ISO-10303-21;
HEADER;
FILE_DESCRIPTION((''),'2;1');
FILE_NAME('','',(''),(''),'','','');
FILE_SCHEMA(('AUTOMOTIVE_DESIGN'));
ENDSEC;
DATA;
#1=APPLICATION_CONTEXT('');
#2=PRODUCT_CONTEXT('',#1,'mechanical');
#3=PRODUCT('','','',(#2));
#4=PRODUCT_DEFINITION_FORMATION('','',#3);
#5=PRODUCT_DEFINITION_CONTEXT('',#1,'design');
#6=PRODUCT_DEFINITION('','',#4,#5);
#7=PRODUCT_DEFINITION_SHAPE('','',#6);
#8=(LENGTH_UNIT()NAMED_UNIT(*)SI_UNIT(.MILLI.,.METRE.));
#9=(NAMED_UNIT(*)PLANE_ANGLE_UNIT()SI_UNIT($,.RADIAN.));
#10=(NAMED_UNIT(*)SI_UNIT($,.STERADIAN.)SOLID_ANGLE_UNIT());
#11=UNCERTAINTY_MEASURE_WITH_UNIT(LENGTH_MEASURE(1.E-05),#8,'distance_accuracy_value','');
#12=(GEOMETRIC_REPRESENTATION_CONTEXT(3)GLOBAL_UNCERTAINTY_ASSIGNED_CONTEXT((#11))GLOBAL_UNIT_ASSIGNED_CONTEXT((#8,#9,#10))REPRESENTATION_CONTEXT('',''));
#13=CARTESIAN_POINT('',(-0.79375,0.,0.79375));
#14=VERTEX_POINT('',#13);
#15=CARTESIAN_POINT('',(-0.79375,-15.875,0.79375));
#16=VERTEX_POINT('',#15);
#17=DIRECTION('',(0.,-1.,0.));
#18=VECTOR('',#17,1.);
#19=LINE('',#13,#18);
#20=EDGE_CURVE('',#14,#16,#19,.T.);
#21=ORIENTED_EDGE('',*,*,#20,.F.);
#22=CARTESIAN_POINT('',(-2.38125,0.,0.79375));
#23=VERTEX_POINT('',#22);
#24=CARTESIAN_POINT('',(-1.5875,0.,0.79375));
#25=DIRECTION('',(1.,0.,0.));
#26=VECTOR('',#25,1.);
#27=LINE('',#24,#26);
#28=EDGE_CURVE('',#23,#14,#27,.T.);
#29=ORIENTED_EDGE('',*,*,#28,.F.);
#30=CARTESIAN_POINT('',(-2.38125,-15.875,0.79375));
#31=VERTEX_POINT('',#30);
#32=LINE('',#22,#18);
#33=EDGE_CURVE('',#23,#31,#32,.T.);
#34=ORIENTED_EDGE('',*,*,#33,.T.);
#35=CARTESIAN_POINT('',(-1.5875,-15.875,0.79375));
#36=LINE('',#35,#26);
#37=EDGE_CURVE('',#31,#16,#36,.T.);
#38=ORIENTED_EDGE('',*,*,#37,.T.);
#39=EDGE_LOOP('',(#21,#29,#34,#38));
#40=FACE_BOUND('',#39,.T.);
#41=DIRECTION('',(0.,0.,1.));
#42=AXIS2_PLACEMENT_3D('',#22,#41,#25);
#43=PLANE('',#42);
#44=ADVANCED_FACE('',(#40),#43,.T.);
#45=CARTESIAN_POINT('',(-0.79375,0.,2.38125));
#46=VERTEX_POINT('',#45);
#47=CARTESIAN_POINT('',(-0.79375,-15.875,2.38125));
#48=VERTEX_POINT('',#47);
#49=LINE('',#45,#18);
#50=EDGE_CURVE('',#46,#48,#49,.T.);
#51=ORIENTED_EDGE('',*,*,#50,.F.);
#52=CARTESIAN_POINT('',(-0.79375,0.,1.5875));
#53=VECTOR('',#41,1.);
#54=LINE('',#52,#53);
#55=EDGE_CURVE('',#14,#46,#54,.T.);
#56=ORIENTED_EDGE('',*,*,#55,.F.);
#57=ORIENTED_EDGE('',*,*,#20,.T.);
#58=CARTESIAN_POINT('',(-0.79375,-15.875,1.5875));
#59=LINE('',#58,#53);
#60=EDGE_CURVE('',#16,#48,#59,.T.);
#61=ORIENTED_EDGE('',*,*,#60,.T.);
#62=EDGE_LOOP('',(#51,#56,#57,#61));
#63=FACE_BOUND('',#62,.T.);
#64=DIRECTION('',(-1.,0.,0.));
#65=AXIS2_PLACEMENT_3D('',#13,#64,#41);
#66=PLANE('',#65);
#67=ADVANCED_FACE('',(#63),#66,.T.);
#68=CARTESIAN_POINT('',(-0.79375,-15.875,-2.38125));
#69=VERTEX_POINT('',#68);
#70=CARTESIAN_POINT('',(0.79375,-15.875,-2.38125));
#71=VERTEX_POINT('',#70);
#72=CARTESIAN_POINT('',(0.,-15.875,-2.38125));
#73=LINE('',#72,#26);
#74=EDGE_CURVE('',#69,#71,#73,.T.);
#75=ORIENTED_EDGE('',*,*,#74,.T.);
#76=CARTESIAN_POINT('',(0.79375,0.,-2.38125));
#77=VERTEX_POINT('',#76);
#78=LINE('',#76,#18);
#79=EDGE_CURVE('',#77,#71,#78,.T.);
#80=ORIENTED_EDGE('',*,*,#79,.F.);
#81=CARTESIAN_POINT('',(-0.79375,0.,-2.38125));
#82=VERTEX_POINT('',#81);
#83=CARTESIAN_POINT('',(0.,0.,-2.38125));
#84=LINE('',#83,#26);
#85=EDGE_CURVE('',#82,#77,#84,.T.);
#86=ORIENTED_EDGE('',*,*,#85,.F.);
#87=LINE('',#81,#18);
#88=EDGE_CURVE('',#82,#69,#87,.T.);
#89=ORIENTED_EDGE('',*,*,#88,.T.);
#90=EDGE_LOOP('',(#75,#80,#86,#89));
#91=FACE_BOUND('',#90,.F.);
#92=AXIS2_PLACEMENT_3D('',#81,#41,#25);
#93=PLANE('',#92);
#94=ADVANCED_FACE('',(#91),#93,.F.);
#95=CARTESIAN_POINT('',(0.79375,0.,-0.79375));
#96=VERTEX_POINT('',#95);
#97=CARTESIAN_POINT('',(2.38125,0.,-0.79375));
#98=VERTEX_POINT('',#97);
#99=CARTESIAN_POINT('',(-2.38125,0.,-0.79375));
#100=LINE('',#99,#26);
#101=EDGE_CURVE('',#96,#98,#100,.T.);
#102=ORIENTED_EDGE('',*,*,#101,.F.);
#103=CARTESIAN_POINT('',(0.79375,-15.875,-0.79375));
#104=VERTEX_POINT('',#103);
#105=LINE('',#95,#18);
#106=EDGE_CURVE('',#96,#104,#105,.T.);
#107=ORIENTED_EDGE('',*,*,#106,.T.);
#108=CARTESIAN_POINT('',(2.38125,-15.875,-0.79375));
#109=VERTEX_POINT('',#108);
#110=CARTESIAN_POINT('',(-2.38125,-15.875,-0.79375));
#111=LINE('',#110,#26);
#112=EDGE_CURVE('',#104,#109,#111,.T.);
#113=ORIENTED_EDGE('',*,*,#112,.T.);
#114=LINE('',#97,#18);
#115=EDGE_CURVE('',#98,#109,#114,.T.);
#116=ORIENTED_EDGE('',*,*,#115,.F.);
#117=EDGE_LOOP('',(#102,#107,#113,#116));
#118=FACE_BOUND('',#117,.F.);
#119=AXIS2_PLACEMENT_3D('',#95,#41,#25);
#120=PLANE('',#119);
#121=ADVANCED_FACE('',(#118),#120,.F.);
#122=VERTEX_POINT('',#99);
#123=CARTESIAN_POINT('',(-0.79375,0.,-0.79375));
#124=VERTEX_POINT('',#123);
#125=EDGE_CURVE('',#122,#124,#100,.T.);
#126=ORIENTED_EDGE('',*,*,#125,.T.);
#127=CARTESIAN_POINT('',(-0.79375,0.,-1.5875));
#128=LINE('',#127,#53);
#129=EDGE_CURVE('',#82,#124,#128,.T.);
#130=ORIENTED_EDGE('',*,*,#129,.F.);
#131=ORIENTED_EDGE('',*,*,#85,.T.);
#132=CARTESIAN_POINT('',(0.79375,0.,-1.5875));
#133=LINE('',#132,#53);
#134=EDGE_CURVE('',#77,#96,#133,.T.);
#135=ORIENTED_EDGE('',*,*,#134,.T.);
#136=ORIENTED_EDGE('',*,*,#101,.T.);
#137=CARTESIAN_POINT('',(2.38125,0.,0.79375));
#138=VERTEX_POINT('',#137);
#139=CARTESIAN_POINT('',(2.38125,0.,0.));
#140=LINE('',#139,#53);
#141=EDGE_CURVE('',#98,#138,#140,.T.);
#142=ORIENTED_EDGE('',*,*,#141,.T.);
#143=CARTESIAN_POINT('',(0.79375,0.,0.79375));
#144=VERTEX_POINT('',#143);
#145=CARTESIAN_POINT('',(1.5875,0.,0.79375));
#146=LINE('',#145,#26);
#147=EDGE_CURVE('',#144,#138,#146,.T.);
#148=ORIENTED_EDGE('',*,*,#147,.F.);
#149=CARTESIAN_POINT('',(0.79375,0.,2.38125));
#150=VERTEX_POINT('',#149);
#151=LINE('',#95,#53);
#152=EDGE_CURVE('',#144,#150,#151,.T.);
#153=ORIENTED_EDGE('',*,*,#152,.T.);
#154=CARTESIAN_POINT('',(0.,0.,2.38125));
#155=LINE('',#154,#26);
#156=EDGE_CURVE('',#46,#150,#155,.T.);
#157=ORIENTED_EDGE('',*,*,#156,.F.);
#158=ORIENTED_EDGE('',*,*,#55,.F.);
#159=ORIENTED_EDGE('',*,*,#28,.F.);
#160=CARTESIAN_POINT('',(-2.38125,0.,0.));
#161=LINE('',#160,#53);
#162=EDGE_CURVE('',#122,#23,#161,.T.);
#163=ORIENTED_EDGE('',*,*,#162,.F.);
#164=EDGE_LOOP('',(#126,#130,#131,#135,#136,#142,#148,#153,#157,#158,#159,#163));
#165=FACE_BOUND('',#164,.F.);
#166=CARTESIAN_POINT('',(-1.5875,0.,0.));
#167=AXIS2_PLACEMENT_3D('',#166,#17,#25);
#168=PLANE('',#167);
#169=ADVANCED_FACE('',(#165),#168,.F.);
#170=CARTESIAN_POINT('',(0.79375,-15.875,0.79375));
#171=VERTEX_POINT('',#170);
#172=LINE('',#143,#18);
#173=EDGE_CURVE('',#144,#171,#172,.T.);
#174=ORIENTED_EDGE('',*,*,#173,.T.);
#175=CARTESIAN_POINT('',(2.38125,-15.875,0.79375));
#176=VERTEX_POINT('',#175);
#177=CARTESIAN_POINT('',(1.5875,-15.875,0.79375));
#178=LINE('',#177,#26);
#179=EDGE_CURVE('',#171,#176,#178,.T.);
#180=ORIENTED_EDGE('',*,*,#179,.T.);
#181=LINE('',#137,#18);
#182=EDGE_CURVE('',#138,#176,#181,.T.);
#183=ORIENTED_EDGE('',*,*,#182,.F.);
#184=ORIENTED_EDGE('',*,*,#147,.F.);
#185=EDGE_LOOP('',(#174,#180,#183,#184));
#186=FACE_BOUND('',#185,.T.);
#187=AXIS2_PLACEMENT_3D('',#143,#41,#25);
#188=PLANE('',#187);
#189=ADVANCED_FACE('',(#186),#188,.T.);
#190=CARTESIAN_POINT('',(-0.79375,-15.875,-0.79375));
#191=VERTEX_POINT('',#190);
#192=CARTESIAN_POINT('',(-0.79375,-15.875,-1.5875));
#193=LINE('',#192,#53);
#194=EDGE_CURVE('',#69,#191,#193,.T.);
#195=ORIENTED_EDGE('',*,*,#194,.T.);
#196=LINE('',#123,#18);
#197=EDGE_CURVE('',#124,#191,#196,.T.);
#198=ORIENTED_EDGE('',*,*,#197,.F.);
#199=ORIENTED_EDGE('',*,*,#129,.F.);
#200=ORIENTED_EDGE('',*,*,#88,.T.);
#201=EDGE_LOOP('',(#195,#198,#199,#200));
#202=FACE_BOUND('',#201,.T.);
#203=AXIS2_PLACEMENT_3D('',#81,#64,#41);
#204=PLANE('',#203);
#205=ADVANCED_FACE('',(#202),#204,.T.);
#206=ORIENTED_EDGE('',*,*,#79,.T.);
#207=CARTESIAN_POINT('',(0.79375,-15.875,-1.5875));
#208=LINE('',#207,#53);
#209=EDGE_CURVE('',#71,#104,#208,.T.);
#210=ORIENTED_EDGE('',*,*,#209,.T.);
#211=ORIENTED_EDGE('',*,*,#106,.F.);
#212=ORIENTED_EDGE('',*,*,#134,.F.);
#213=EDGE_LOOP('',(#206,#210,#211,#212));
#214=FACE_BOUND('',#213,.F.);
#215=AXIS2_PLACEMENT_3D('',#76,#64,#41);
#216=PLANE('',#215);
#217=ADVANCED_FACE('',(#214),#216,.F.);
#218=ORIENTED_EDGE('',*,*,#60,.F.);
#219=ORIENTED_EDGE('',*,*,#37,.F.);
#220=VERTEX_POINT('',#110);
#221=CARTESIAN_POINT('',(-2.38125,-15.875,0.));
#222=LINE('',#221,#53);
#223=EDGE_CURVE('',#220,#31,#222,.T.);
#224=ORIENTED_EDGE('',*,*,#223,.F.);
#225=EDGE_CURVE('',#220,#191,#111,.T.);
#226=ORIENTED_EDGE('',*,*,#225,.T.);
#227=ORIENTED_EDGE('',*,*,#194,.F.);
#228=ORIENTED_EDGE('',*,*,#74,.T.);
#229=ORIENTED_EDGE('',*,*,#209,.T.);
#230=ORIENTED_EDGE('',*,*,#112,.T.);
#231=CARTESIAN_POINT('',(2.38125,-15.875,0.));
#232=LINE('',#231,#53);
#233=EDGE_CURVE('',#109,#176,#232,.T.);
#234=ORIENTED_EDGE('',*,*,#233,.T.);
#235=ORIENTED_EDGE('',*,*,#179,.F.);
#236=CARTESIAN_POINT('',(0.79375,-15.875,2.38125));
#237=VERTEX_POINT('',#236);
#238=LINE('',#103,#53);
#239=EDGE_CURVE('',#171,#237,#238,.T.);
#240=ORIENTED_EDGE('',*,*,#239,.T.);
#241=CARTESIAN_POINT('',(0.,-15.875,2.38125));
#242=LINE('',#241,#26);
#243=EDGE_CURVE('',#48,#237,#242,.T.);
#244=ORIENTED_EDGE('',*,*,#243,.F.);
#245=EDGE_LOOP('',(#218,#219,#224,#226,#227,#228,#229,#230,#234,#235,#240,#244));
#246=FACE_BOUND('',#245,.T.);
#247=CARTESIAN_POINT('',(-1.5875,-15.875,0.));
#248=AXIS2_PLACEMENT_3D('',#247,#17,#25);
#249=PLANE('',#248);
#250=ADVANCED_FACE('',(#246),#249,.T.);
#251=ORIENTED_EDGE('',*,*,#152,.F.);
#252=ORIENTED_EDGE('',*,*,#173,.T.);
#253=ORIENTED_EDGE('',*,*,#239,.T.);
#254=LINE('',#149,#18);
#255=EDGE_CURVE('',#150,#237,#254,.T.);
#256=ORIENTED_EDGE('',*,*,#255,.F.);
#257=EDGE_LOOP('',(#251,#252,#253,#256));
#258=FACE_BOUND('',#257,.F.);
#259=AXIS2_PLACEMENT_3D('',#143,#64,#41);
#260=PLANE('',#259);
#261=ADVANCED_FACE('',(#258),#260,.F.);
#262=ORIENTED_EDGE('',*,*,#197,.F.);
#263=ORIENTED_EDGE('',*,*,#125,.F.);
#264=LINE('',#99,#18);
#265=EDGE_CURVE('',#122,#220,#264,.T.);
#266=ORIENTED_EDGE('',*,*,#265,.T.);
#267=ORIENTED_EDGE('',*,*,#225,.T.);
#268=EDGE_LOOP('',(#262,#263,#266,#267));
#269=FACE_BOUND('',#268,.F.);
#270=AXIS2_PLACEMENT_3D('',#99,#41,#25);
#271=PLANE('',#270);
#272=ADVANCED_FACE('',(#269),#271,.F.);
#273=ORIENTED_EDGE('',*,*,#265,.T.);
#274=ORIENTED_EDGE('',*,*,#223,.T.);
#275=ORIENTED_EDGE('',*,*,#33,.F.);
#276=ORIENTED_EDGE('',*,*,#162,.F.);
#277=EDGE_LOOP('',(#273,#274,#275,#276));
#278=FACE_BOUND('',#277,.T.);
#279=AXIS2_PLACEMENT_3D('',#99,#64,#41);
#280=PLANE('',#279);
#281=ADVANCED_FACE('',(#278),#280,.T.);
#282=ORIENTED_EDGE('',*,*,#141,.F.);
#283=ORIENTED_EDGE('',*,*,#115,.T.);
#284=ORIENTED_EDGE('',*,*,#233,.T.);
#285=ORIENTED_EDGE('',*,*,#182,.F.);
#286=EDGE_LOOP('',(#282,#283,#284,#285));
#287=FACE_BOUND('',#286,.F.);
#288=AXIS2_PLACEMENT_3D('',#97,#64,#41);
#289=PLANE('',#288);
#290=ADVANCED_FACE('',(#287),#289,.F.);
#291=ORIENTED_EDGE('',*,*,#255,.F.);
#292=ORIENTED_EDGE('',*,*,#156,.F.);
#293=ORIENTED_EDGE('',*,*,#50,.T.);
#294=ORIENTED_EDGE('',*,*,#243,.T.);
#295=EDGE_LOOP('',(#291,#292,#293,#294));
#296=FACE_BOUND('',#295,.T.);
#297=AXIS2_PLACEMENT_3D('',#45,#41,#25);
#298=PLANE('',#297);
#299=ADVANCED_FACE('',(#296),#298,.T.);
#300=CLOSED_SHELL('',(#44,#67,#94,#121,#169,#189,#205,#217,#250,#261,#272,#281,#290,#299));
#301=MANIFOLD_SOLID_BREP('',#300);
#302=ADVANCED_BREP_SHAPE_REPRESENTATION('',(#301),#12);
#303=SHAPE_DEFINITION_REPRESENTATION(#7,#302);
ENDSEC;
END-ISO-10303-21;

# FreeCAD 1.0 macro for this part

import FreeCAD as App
import Part
import Sketcher
from FreeCAD import Vector
Q = App.Units.Quantity


def add_polygon(sketch, points):
    """Adds a closed chain of lines whose ends are joined by coincident constraints."""
    first, n = sketch.GeometryCount, len(points)
    for a, b in zip(points, points[1:] + points[:1]):
        sketch.addGeometry(Part.LineSegment(App.Vector(*a, 0), App.Vector(*b, 0)), False)
    for i in range(n):
        sketch.addConstraint(Sketcher.Constraint("Coincident", first + i, 2, first + (i + 1) % n, 1))

doc = App.newDocument("Part")
params = doc.addObject("Spreadsheet::Sheet", "Params")
for row, (alias, value) in enumerate([
    ("sketch1_width", "0.0625 in"),
    ("pad1_length", "0.625 in"),
], start=1):
    params.set(f"A{row}", alias)
    params.set(f"B{row}", "=" + value)
    params.setAlias(f"B{row}", alias)

body = doc.addObject("PartDesign::Body", "Body")

sketch1 = body.newObject("Sketcher::SketchObject", "Sketch")
sketch1.AttachmentSupport = (doc.getObject("XZ_Plane"), [""])
sketch1.MapMode = "FlatFace"
add_polygon(sketch1, [(-2.38125, 0.79375), (-2.38125, -0.79375), (-0.79375, -0.79375), (-0.79375, -2.38125), (0.79375, -2.38125), (0.79375, -0.79375), (2.38125, -0.79375), (2.38125, 0.79375), (0.79375, 0.79375), (0.79375, 2.38125), (-0.79375, 2.38125), (-0.79375, 0.79375)])
sketch1.addConstraint([
    Sketcher.Constraint("Vertical", 0),
    Sketcher.Constraint("Horizontal", 1),
    Sketcher.Constraint("Vertical", 2),
    Sketcher.Constraint("Horizontal", 3),
    Sketcher.Constraint("Vertical", 4),
    Sketcher.Constraint("Horizontal", 5),
    Sketcher.Constraint("Vertical", 6),
    Sketcher.Constraint("Horizontal", 7),
    Sketcher.Constraint("Vertical", 8),
    Sketcher.Constraint("Horizontal", 9),
    Sketcher.Constraint("Vertical", 10),
    Sketcher.Constraint("Horizontal", 11),
    Sketcher.Constraint("Symmetric", 0, 2, 6, 2, -1, 1),
    Sketcher.Constraint("Symmetric", 2, 2, 8, 2, -1, 1),
    Sketcher.Constraint("Symmetric", 4, 2, 10, 2, -1, 1),
    Sketcher.Constraint("Symmetric", 1, 2, 4, 2, -2),
    Sketcher.Constraint("Equal", 1, 3),
    Sketcher.Constraint("Equal", 11, 0),
    Sketcher.Constraint("Equal", 0, 2),
    Sketcher.Constraint("DistanceX", 1, 1, 1, 2, Q("0.0625 in")),
])
sketch1.setExpression("Constraints[31]", "Params.sketch1_width")
pad1 = body.newObject("PartDesign::Pad", "Pad")
pad1.Profile = sketch1
pad1.setExpression("Length", "Params.pad1_length")

doc.recompute()
